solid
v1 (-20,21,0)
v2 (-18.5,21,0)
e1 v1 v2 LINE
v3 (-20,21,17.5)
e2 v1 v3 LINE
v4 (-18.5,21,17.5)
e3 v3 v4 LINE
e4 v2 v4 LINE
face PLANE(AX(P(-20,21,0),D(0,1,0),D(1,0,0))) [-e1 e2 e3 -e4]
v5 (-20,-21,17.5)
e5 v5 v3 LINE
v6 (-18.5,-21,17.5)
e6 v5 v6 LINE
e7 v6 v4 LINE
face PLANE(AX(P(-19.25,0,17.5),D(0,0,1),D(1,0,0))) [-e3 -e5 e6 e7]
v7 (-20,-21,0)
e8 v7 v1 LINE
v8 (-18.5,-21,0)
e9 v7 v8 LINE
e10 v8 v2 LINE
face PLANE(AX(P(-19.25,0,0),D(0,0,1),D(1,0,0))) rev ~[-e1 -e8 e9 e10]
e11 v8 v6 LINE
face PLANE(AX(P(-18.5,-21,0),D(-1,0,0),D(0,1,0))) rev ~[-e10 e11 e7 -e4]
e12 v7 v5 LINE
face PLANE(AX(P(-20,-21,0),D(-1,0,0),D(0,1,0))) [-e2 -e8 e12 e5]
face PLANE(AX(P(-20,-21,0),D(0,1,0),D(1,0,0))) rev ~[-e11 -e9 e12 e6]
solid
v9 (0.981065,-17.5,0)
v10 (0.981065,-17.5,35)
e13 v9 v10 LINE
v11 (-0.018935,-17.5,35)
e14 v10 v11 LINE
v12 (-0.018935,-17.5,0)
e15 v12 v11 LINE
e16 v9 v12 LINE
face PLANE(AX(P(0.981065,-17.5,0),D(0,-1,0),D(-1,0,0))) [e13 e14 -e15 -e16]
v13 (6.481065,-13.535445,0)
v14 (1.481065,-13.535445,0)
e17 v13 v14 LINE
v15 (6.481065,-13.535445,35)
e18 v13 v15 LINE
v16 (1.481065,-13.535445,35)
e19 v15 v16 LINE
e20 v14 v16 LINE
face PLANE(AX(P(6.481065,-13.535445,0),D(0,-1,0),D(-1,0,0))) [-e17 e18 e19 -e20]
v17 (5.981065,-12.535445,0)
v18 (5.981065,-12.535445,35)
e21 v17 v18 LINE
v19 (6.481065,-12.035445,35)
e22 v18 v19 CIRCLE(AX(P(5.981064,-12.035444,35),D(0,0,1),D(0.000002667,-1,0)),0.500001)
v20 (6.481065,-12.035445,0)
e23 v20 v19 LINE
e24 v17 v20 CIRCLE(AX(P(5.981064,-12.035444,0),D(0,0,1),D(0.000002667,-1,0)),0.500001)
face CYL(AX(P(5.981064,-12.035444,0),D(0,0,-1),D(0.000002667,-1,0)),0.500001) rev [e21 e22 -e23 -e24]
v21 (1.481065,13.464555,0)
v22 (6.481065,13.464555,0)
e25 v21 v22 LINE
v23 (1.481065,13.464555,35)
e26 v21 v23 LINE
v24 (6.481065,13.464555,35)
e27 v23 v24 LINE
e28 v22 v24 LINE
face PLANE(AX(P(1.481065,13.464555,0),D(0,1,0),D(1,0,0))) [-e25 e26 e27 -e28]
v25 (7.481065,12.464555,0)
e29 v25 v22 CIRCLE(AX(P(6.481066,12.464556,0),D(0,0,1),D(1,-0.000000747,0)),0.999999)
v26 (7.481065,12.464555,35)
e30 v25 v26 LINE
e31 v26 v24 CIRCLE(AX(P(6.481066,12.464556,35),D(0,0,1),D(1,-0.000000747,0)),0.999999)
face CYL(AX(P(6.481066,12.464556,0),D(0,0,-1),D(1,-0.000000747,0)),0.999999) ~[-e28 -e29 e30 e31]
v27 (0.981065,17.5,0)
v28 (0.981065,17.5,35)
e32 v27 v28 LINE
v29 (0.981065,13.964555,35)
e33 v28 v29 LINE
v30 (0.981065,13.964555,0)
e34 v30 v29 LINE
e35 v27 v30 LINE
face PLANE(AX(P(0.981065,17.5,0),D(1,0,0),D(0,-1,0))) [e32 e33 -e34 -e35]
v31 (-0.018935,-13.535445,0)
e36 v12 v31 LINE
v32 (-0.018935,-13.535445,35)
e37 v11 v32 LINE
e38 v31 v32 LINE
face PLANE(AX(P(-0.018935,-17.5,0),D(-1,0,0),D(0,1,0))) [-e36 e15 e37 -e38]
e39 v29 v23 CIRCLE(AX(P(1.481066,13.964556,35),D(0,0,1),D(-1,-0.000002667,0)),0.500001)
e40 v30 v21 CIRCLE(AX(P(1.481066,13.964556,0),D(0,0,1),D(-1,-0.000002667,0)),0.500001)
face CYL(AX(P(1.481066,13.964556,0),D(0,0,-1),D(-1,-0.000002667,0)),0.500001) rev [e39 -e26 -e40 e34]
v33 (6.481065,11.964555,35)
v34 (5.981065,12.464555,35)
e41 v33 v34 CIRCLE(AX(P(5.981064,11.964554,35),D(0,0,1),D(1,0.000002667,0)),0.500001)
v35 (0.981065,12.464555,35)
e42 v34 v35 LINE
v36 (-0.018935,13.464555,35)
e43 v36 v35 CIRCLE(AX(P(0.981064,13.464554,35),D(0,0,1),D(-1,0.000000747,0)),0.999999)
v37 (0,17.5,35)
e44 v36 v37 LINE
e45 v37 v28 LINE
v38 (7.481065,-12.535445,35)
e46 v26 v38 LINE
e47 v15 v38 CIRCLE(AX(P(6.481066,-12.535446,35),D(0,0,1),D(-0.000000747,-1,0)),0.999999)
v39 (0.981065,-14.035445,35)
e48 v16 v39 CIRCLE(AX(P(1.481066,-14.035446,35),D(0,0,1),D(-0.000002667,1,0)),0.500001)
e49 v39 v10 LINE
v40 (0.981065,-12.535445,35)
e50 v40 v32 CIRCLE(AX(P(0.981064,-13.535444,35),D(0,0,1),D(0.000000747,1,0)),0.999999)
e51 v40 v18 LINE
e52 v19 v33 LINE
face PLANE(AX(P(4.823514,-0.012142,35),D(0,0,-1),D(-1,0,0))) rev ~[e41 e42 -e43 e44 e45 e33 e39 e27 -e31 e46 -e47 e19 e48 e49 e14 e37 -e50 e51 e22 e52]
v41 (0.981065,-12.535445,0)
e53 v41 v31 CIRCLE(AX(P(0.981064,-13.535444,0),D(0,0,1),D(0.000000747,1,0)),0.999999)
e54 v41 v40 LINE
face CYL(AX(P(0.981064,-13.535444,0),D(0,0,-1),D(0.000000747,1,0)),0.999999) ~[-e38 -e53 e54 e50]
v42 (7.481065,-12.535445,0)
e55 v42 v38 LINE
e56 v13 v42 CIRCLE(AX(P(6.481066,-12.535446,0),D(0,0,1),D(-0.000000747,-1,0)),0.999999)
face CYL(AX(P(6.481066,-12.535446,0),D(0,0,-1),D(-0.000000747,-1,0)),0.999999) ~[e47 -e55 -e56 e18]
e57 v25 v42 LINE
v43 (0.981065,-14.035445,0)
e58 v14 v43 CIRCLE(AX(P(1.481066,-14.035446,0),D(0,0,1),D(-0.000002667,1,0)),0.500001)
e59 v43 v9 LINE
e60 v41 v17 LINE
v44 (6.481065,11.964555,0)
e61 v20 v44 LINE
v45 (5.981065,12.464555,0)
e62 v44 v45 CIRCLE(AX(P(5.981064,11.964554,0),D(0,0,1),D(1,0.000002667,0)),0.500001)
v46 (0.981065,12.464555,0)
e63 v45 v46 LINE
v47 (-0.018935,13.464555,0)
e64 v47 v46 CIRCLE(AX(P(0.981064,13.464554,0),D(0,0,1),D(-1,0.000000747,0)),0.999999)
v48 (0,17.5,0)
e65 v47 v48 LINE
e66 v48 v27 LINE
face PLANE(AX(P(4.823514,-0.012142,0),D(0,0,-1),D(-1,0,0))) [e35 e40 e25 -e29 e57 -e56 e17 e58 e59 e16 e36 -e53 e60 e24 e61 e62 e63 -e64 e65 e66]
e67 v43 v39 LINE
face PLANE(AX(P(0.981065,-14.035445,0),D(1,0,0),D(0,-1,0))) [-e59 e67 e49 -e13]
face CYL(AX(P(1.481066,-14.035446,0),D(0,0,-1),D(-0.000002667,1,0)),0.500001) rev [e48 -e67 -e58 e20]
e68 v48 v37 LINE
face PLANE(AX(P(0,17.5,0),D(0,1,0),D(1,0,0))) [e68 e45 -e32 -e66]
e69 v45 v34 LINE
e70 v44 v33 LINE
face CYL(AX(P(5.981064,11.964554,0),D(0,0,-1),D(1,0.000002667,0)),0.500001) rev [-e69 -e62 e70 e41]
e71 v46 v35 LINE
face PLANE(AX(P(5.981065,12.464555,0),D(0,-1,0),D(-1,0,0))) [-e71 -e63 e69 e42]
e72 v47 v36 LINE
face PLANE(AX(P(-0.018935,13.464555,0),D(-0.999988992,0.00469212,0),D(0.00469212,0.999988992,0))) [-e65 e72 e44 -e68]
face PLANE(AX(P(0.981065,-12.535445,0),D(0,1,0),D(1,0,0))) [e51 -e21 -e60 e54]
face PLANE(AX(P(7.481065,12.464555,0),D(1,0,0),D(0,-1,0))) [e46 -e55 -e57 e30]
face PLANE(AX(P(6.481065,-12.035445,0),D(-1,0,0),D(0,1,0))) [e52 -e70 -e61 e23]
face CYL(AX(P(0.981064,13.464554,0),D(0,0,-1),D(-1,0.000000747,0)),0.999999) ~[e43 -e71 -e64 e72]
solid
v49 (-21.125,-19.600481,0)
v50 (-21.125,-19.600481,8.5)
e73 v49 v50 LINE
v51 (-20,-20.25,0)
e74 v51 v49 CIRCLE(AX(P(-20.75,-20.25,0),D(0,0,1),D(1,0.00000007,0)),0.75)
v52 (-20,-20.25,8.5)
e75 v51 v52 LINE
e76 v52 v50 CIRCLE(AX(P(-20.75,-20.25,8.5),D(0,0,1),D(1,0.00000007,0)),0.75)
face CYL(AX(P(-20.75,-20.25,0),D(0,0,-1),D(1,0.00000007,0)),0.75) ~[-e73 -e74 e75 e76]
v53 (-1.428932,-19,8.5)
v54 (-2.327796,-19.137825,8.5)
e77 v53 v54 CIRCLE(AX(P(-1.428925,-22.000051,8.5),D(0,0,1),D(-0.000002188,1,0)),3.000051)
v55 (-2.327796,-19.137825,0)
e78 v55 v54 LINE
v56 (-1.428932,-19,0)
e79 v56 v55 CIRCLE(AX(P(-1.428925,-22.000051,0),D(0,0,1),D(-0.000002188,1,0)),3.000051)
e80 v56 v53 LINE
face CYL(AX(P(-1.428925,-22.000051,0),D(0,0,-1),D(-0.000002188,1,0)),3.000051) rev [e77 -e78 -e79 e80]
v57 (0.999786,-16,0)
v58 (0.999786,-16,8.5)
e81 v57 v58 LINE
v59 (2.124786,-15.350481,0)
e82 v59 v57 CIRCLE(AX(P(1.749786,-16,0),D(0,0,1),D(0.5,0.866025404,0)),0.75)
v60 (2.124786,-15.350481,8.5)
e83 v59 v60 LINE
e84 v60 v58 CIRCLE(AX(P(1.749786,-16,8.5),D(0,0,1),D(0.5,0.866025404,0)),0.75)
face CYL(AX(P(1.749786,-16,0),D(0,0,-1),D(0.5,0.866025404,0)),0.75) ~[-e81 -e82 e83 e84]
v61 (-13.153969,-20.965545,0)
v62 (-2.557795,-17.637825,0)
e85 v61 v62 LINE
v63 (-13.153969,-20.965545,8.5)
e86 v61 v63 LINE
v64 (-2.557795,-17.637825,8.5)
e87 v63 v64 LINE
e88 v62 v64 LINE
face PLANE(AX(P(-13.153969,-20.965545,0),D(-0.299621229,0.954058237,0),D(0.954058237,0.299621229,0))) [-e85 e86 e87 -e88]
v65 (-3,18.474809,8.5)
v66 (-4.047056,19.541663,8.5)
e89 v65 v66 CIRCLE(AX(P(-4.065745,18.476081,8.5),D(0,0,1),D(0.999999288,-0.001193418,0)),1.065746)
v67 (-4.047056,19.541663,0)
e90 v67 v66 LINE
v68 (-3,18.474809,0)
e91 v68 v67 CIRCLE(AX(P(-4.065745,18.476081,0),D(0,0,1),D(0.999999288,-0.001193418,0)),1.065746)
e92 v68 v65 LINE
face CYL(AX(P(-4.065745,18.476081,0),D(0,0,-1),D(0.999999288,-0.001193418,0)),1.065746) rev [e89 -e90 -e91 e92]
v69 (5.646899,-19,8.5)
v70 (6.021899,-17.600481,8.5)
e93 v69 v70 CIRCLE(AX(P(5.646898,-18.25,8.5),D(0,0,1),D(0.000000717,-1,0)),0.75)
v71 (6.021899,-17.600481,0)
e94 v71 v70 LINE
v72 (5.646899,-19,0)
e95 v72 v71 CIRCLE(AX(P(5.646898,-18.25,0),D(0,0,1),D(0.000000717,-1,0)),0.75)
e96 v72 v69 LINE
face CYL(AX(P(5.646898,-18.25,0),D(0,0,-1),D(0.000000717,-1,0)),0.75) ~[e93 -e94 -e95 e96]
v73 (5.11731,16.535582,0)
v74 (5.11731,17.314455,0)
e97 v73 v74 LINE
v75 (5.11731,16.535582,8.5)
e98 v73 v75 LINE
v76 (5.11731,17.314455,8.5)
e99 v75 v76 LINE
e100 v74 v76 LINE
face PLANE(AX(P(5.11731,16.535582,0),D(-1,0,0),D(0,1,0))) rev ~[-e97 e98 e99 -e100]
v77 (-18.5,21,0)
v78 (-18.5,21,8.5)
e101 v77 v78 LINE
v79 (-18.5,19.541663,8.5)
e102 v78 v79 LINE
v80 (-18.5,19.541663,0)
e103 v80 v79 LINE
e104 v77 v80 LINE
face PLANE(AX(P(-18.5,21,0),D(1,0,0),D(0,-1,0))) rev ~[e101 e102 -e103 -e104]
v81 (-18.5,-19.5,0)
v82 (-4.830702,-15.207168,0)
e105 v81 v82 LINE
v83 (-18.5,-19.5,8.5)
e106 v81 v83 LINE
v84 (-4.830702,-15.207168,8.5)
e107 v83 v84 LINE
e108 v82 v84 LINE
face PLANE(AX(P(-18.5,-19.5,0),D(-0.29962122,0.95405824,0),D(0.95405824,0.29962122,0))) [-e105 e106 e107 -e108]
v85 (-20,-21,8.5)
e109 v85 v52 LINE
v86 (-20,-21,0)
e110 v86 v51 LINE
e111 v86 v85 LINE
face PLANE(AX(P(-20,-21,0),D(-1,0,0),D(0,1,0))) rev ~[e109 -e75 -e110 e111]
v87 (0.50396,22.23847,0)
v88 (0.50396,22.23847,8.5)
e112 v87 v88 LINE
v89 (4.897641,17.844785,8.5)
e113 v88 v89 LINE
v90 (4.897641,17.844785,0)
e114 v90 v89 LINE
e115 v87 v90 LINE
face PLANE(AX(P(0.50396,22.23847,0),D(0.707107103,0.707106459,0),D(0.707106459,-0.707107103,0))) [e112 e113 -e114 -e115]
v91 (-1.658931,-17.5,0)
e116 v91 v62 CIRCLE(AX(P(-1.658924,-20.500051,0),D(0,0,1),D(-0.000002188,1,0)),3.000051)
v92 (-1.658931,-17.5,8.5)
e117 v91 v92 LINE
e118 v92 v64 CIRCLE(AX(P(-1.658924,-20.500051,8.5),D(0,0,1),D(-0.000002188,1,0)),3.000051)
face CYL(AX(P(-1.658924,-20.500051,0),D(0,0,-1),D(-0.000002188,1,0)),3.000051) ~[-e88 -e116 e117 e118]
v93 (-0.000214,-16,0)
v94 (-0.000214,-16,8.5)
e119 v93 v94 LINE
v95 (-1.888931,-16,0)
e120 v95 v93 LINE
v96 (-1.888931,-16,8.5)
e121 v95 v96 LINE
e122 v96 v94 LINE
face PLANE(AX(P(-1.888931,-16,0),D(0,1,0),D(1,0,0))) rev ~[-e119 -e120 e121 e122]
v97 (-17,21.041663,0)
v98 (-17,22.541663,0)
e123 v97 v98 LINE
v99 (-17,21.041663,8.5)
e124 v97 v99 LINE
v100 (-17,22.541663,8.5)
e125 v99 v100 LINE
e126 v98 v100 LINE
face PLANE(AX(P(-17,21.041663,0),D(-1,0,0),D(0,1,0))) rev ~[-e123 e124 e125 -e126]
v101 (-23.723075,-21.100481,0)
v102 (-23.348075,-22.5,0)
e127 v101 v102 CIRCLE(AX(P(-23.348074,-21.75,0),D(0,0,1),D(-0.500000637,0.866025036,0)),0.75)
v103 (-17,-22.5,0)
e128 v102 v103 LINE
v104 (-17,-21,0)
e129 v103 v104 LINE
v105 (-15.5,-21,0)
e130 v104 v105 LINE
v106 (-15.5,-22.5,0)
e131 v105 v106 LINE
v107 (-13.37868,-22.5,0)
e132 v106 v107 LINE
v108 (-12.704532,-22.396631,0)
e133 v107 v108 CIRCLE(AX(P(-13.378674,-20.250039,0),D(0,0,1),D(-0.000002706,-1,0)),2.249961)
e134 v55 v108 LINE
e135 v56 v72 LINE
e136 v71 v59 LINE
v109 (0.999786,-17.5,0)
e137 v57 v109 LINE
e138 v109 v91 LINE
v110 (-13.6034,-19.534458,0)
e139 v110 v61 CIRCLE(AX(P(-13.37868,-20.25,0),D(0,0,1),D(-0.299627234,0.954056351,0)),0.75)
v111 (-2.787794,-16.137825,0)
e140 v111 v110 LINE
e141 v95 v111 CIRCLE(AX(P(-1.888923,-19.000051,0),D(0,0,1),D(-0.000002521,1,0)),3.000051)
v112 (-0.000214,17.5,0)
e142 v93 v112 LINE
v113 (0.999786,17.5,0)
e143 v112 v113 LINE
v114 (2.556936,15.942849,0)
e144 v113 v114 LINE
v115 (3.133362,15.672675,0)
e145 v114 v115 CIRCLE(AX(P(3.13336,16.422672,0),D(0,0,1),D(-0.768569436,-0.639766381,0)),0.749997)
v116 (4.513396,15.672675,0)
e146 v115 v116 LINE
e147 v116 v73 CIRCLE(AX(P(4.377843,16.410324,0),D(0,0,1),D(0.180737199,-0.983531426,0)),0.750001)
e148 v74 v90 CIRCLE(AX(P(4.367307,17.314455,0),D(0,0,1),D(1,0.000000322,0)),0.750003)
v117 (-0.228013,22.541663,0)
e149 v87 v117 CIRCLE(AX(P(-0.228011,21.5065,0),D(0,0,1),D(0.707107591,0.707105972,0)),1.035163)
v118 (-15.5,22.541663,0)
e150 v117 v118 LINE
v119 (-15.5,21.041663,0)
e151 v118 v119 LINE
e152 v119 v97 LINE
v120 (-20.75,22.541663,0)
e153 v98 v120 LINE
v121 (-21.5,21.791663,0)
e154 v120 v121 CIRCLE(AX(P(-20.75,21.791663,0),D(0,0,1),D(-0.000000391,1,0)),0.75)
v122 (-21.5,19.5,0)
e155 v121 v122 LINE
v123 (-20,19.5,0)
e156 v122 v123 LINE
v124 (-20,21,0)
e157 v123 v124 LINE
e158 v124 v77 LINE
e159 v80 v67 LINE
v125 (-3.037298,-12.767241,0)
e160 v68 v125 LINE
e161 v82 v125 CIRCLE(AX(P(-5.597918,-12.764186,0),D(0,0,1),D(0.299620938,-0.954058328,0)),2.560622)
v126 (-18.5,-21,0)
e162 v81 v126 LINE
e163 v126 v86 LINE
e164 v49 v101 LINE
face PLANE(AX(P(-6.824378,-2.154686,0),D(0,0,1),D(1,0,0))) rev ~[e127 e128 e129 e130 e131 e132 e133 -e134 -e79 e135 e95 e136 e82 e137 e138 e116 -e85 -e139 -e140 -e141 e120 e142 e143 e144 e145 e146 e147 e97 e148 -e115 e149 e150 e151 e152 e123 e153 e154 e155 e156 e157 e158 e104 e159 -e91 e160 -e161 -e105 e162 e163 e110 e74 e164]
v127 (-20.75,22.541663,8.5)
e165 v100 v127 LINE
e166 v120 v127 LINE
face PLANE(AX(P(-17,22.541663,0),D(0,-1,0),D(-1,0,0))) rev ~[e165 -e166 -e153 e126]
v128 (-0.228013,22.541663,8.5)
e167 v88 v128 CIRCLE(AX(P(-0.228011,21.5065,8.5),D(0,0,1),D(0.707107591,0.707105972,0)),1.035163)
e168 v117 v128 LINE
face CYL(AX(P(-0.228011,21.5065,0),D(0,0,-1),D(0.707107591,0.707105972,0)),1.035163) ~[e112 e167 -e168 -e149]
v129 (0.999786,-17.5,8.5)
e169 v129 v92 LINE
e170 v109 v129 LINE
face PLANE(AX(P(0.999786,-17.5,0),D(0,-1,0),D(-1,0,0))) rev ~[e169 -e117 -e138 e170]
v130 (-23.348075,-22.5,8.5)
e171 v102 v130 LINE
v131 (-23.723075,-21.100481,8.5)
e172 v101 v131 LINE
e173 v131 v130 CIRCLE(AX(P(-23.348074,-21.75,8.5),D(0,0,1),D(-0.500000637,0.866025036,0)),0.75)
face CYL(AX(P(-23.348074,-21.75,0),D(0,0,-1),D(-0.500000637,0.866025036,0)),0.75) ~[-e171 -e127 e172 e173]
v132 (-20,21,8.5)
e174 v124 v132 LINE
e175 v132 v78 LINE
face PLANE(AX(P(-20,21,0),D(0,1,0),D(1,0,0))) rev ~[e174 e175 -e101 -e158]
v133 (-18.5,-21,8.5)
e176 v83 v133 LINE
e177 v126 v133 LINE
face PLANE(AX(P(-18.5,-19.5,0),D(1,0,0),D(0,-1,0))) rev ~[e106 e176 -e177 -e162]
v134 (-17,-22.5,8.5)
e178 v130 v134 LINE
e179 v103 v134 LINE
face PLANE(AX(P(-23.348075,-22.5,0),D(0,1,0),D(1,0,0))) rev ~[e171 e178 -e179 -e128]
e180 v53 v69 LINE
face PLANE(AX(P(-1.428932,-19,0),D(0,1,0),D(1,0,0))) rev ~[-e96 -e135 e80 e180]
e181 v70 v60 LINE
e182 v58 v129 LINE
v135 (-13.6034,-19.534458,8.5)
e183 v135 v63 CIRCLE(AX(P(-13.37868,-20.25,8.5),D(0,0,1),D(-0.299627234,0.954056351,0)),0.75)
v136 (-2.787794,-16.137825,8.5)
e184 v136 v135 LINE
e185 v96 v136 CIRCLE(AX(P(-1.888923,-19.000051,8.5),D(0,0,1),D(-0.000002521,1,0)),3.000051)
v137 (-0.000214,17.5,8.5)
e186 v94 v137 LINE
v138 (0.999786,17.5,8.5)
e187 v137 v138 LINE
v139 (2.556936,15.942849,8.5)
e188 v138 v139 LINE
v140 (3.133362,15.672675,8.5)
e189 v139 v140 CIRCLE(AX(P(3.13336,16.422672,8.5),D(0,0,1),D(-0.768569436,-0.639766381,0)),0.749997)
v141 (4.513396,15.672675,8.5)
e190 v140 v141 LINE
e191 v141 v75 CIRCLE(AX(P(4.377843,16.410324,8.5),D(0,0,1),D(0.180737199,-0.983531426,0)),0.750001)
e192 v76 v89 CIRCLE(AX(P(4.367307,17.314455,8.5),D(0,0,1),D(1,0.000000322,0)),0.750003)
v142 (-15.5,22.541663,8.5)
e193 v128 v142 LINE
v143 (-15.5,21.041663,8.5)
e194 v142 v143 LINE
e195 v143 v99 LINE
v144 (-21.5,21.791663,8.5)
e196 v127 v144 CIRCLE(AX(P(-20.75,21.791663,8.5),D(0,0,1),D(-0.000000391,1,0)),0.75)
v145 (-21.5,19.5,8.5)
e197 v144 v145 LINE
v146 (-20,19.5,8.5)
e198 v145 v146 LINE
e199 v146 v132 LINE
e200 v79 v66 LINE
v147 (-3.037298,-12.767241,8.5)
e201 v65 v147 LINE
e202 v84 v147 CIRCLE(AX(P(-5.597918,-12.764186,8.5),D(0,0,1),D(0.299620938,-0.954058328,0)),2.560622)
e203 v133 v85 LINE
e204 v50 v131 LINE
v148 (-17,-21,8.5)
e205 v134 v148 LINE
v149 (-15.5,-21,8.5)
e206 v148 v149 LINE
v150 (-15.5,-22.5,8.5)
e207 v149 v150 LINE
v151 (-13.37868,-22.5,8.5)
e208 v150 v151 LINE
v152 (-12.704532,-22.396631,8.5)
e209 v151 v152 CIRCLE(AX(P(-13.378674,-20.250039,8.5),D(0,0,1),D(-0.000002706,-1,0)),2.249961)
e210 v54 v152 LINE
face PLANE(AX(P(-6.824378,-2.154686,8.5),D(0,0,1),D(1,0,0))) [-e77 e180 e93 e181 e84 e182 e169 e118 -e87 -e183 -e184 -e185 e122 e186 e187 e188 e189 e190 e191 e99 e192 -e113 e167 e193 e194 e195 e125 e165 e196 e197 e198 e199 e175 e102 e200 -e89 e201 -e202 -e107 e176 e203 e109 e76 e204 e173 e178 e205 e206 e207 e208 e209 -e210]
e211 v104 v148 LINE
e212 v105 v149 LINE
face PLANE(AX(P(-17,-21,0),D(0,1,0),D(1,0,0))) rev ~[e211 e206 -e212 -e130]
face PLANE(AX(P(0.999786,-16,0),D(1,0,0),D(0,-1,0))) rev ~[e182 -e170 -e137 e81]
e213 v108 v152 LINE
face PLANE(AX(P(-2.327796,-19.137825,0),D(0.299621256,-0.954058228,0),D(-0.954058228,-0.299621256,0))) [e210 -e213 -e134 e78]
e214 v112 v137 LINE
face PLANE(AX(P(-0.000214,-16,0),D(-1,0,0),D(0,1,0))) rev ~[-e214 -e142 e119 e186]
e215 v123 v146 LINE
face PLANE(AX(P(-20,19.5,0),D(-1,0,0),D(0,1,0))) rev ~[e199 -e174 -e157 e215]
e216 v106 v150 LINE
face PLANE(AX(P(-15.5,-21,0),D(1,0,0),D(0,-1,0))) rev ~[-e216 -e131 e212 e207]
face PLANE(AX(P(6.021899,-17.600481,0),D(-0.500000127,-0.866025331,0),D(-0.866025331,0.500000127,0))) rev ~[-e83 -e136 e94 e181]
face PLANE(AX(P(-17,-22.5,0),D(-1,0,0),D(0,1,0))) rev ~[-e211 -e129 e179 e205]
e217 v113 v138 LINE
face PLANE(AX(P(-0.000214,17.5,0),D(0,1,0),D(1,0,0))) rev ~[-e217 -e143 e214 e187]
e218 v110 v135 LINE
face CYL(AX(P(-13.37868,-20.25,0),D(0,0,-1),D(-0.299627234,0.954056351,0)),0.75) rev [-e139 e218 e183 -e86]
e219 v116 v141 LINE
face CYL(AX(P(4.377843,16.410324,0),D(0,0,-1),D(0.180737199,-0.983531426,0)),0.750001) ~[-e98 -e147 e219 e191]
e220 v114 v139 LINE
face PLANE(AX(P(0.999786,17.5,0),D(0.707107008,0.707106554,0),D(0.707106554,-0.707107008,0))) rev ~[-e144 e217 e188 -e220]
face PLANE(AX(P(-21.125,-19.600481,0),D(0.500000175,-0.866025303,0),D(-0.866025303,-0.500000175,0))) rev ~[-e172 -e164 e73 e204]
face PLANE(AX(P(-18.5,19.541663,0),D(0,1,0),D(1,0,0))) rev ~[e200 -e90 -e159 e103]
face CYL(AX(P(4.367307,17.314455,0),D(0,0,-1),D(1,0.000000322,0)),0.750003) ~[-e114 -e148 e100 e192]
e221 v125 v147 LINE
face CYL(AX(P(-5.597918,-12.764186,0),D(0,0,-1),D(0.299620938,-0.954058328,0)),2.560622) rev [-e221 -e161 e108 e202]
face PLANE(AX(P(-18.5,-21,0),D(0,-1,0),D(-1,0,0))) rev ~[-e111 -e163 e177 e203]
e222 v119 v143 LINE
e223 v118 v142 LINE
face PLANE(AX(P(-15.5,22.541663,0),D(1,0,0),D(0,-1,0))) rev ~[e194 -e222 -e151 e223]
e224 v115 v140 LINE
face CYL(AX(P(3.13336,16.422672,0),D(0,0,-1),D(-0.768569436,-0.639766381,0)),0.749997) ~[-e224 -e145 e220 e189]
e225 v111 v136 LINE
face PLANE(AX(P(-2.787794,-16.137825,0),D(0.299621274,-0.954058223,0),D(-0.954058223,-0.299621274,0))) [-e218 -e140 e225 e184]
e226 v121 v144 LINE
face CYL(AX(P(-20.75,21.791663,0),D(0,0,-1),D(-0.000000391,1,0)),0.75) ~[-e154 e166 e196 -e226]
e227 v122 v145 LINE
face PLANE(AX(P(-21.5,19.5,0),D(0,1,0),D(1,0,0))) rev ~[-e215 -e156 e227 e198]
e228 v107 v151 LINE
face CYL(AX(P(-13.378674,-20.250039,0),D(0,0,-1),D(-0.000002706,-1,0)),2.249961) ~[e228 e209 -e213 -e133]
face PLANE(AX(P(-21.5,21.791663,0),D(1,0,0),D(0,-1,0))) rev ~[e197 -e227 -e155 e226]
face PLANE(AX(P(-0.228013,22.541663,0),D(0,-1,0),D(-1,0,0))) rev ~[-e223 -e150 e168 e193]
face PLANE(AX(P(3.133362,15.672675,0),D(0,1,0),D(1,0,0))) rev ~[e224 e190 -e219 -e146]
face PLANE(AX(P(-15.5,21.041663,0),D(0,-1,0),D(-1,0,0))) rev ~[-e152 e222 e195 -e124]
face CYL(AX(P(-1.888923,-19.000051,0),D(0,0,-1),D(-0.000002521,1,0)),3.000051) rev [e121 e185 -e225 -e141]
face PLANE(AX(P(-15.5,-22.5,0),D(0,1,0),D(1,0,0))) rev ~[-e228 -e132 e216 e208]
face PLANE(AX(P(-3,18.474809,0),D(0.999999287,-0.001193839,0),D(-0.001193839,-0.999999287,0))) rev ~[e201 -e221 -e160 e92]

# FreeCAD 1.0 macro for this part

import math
import FreeCAD as App
import Part
import Sketcher
Q = App.Units.Quantity


def add_polygon(sketch, points):
    """Adds a closed chain of lines whose ends are joined by coincident constraints."""
    first, n = sketch.GeometryCount, len(points)
    for a, b in zip(points, points[1:] + points[:1]):
        sketch.addGeometry(Part.LineSegment(App.Vector(*a, 0), App.Vector(*b, 0)), False)
    for i in range(n):
        sketch.addConstraint(Sketcher.Constraint("Coincident", first + i, 2, first + (i + 1) % n, 1))

doc = App.newDocument("Part")
body = doc.addObject("PartDesign::Body", "Body")

sketch1 = body.newObject("Sketcher::SketchObject", "Sketch")
sketch1.AttachmentSupport = (doc.getObject("XY_Plane"), [""])
sketch1.MapMode = "FlatFace"
sketch1.addGeometry([
    Part.LineSegment(App.Vector(0.981065, 17.5, 0), App.Vector(0, 17.5, 0)),
    Part.LineSegment(App.Vector(0, 17.5, 0), App.Vector(-0.018935, 13.464555, 0)),
    Part.ArcOfCircle(Part.Circle(App.Vector(0.981064, 13.464554, 0), App.Vector(0, 0, 1), 0.999999), math.radians(179.999957), math.radians(270.000043)),
    Part.LineSegment(App.Vector(0.981065, 12.464555, 0), App.Vector(5.981065, 12.464555, 0)),
    Part.ArcOfCircle(Part.Circle(App.Vector(5.981064, 11.964554, 0), App.Vector(0, 0, 1), 0.500001), math.radians(0.000153), math.radians(89.999847)),
    Part.LineSegment(App.Vector(6.481065, 11.964555, 0), App.Vector(6.481065, -12.035445, 0)),
    Part.ArcOfCircle(Part.Circle(App.Vector(5.981064, -12.035444, 0), App.Vector(0, 0, 1), 0.500001), math.radians(-89.999847), math.radians(-0.000153)),
    Part.LineSegment(App.Vector(5.981065, -12.535445, 0), App.Vector(0.981065, -12.535445, 0)),
    Part.ArcOfCircle(Part.Circle(App.Vector(0.981064, -13.535444, 0), App.Vector(0, 0, 1), 0.999999), math.radians(89.999957), math.radians(180.000043)),
    Part.LineSegment(App.Vector(-0.018935, -13.535445, 0), App.Vector(-0.018935, -17.5, 0)),
    Part.LineSegment(App.Vector(-0.018935, -17.5, 0), App.Vector(0.981065, -17.5, 0)),
    Part.LineSegment(App.Vector(0.981065, -17.5, 0), App.Vector(0.981065, -14.035445, 0)),
    Part.ArcOfCircle(Part.Circle(App.Vector(1.481066, -14.035446, 0), App.Vector(0, 0, 1), 0.500001), math.radians(90.000153), math.radians(179.999847)),
    Part.LineSegment(App.Vector(1.481065, -13.535445, 0), App.Vector(6.481065, -13.535445, 0)),
    Part.ArcOfCircle(Part.Circle(App.Vector(6.481066, -12.535446, 0), App.Vector(0, 0, 1), 0.999999), math.radians(-90.000043), math.radians(0.000043)),
    Part.LineSegment(App.Vector(7.481065, -12.535445, 0), App.Vector(7.481065, 12.464555, 0)),
    Part.ArcOfCircle(Part.Circle(App.Vector(6.481066, 12.464556, 0), App.Vector(0, 0, 1), 0.999999), math.radians(-0.000043), math.radians(90.000043)),
    Part.LineSegment(App.Vector(6.481065, 13.464555, 0), App.Vector(1.481065, 13.464555, 0)),
    Part.ArcOfCircle(Part.Circle(App.Vector(1.481066, 13.964556, 0), App.Vector(0, 0, 1), 0.500001), math.radians(-179.999847), math.radians(-90.000153)),
    Part.LineSegment(App.Vector(0.981065, 13.964555, 0), App.Vector(0.981065, 17.5, 0)),
], False)
sketch1.addConstraint([
    Sketcher.Constraint("Coincident", 0, 2, 1, 1),
    Sketcher.Constraint("Coincident", 1, 2, 2, 1),
    Sketcher.Constraint("Tangent", 2, 2, 3, 1),
    Sketcher.Constraint("Coincident", 3, 2, 4, 2),
    Sketcher.Constraint("Coincident", 4, 1, 5, 1),
    Sketcher.Constraint("Coincident", 5, 2, 6, 2),
    Sketcher.Constraint("Coincident", 6, 1, 7, 1),
    Sketcher.Constraint("Tangent", 7, 2, 8, 1),
    Sketcher.Constraint("Tangent", 8, 2, 9, 1),
    Sketcher.Constraint("Coincident", 9, 2, 10, 1),
    Sketcher.Constraint("Coincident", 10, 2, 11, 1),
    Sketcher.Constraint("Coincident", 11, 2, 12, 2),
    Sketcher.Constraint("Coincident", 12, 1, 13, 1),
    Sketcher.Constraint("Tangent", 13, 2, 14, 1),
    Sketcher.Constraint("Tangent", 14, 2, 15, 1),
    Sketcher.Constraint("Tangent", 15, 2, 16, 1),
    Sketcher.Constraint("Tangent", 16, 2, 17, 1),
    Sketcher.Constraint("Coincident", 17, 2, 18, 2),
    Sketcher.Constraint("Coincident", 18, 1, 19, 1),
    Sketcher.Constraint("Coincident", 19, 2, 0, 1),
    Sketcher.Constraint("Horizontal", 0),
    Sketcher.Constraint("Horizontal", 3),
    Sketcher.Constraint("Vertical", 5),
    Sketcher.Constraint("Horizontal", 7),
    Sketcher.Constraint("Vertical", 9),
    Sketcher.Constraint("Horizontal", 10),
    Sketcher.Constraint("Vertical", 11),
    Sketcher.Constraint("Horizontal", 13),
    Sketcher.Constraint("Vertical", 15),
    Sketcher.Constraint("Horizontal", 17),
    Sketcher.Constraint("Vertical", 19),
    Sketcher.Constraint("Equal", 4, 6),
    Sketcher.Constraint("Equal", 2, 8),
    Sketcher.Constraint("Equal", 6, 12),
    Sketcher.Constraint("Equal", 8, 14),
    Sketcher.Constraint("Equal", 14, 16),
    Sketcher.Constraint("Equal", 12, 18),
    Sketcher.Constraint("Symmetric", 10, 2, 19, 2, -1),
    Sketcher.Constraint("PointOnObject", 0, 2, -2),
    Sketcher.Constraint("Horizontal", 2, 3, 1, 2),
    Sketcher.Constraint("Horizontal", 16, 3, 2, 2),
    Sketcher.Constraint("Horizontal", 6, 3, 5, 2),
    Sketcher.Constraint("Horizontal", 14, 3, 6, 1),
    Sketcher.Constraint("Horizontal", 12, 3, 11, 2),
    Sketcher.Constraint("Vertical", 2, 3, 8, 3),
    Sketcher.Constraint("Vertical", 6, 3, 3, 2),
    Sketcher.Constraint("Vertical", 16, 3, 4, 1),
    Sketcher.Constraint("Vertical", 3, 2, 6, 1),
    Sketcher.Constraint("Vertical", 7, 2, 10, 2),
    Sketcher.Constraint("Vertical", 18, 3, 12, 1),
    Sketcher.Constraint("Vertical", 12, 1, 17, 2),
    Sketcher.Constraint("Radius", 2, Q("0.999999 mm")),
    Sketcher.Constraint("Radius", 4, Q("0.500001 mm")),
    Sketcher.Constraint("DistanceX", 3, 1, 3, 2, Q("5 mm")),
    Sketcher.Constraint("DistanceY", 5, 2, 5, 1, Q("24 mm")),
    Sketcher.Constraint("DistanceY", 15, 1, 15, 2, Q("25 mm")),
    Sketcher.Constraint("DistanceY", -1, 1, 0, 2, Q("17.5 mm")),
    Sketcher.Constraint("DistanceY", 2, 3, 18, 1, Q("0.500001 mm")),
    Sketcher.Constraint("Distance", 1, Q("4.035489 mm")),
    Sketcher.Constraint("DistanceX", 0, 2, 0, 1, Q("0.981065 mm")),
])
pad1 = body.newObject("PartDesign::Pad", "Pad")
pad1.Profile = sketch1
pad1.Length = 35
body2 = doc.addObject("PartDesign::Body", "Body001")

sketch2 = body2.newObject("Sketcher::SketchObject", "Sketch001")
sketch2.AttachmentSupport = (doc.getObject("XY_Plane001"), [""])
sketch2.MapMode = "FlatFace"
sketch2.addGeometry([
    Part.LineSegment(App.Vector(-0.228013, 22.541663, 0), App.Vector(-15.5, 22.541663, 0)),
    Part.LineSegment(App.Vector(-15.5, 22.541663, 0), App.Vector(-15.5, 21.041663, 0)),
    Part.LineSegment(App.Vector(-15.5, 21.041663, 0), App.Vector(-17, 21.041663, 0)),
    Part.LineSegment(App.Vector(-17, 21.041663, 0), App.Vector(-17, 22.541663, 0)),
    Part.LineSegment(App.Vector(-17, 22.541663, 0), App.Vector(-20.75, 22.541663, 0)),
    Part.ArcOfCircle(Part.Circle(App.Vector(-20.75, 21.791663, 0), App.Vector(0, 0, 1), 0.75), math.radians(90.000022), math.radians(179.999978)),
    Part.LineSegment(App.Vector(-21.5, 21.791663, 0), App.Vector(-21.5, 19.5, 0)),
    Part.LineSegment(App.Vector(-21.5, 19.5, 0), App.Vector(-20, 19.5, 0)),
    Part.LineSegment(App.Vector(-20, 19.5, 0), App.Vector(-20, 21, 0)),
    Part.LineSegment(App.Vector(-20, 21, 0), App.Vector(-18.5, 21, 0)),
    Part.LineSegment(App.Vector(-18.5, 21, 0), App.Vector(-18.5, 19.541663, 0)),
    Part.LineSegment(App.Vector(-18.5, 19.541663, 0), App.Vector(-4.047056, 19.541663, 0)),
    Part.ArcOfCircle(Part.Circle(App.Vector(-4.065745, 18.476081, 0), App.Vector(0, 0, 1), 1.065746), math.radians(-0.068378), math.radians(88.995192)),
    Part.LineSegment(App.Vector(-3, 18.474809, 0), App.Vector(-3.037298, -12.767241, 0)),
    Part.ArcOfCircle(Part.Circle(App.Vector(-5.597918, -12.764186, 0), App.Vector(0, 0, 1), 2.560622), math.radians(-72.565163), math.radians(-0.068368)),
    Part.LineSegment(App.Vector(-4.830702, -15.207168, 0), App.Vector(-18.5, -19.5, 0)),
    Part.LineSegment(App.Vector(-18.5, -19.5, 0), App.Vector(-18.5, -21, 0)),
    Part.LineSegment(App.Vector(-18.5, -21, 0), App.Vector(-20, -21, 0)),
    Part.LineSegment(App.Vector(-20, -21, 0), App.Vector(-20, -20.25, 0)),
    Part.ArcOfCircle(Part.Circle(App.Vector(-20.75, -20.25, 0), App.Vector(0, 0, 1), 0.75), math.radians(0.000004), math.radians(120)),
    Part.LineSegment(App.Vector(-21.125, -19.600481, 0), App.Vector(-23.723075, -21.100481, 0)),
    Part.ArcOfCircle(Part.Circle(App.Vector(-23.348074, -21.75, 0), App.Vector(0, 0, 1), 0.75), math.radians(120.000042), math.radians(269.999959)),
    Part.LineSegment(App.Vector(-23.348075, -22.5, 0), App.Vector(-17, -22.5, 0)),
    Part.LineSegment(App.Vector(-17, -22.5, 0), App.Vector(-17, -21, 0)),
    Part.LineSegment(App.Vector(-17, -21, 0), App.Vector(-15.5, -21, 0)),
    Part.LineSegment(App.Vector(-15.5, -21, 0), App.Vector(-15.5, -22.5, 0)),
    Part.LineSegment(App.Vector(-15.5, -22.5, 0), App.Vector(-13.37868, -22.5, 0)),
    Part.ArcOfCircle(Part.Circle(App.Vector(-13.378674, -20.250039, 0), App.Vector(0, 0, 1), 2.249961), math.radians(-90.000155), math.radians(-72.564991)),
    Part.LineSegment(App.Vector(-12.704532, -22.396631, 0), App.Vector(-2.327796, -19.137825, 0)),
    Part.ArcOfCircle(Part.Circle(App.Vector(-1.428925, -22.000051, 0), App.Vector(0, 0, 1), 3.000051), math.radians(90.000125), math.radians(107.434687)),
    Part.LineSegment(App.Vector(-1.428932, -19, 0), App.Vector(5.646899, -19, 0)),
    Part.ArcOfCircle(Part.Circle(App.Vector(5.646898, -18.25, 0), App.Vector(0, 0, 1), 0.75), math.radians(-89.999959), math.radians(59.999958)),
    Part.LineSegment(App.Vector(6.021899, -17.600481, 0), App.Vector(2.124786, -15.350481, 0)),
    Part.ArcOfCircle(Part.Circle(App.Vector(1.749786, -16, 0), App.Vector(0, 0, 1), 0.75), math.radians(60), math.radians(179.999996)),
    Part.LineSegment(App.Vector(0.999786, -16, 0), App.Vector(0.999786, -17.5, 0)),
    Part.LineSegment(App.Vector(0.999786, -17.5, 0), App.Vector(-1.658931, -17.5, 0)),
    Part.ArcOfCircle(Part.Circle(App.Vector(-1.658924, -20.500051, 0), App.Vector(0, 0, 1), 3.000051), math.radians(90.000125), math.radians(107.434687)),
    Part.LineSegment(App.Vector(-2.557795, -17.637825, 0), App.Vector(-13.153969, -20.965545, 0)),
    Part.ArcOfCircle(Part.Circle(App.Vector(-13.37868, -20.25, 0), App.Vector(0, 0, 1), 0.75), math.radians(107.435215), math.radians(287.434441)),
    Part.LineSegment(App.Vector(-13.6034, -19.534458, 0), App.Vector(-2.787794, -16.137825, 0)),
    Part.ArcOfCircle(Part.Circle(App.Vector(-1.888923, -19.000051, 0), App.Vector(0, 0, 1), 3.000051), math.radians(90.000144), math.radians(107.434687)),
    Part.LineSegment(App.Vector(-1.888931, -16, 0), App.Vector(-0.000214, -16, 0)),
    Part.LineSegment(App.Vector(-0.000214, -16, 0), App.Vector(-0.000214, 17.5, 0)),
    Part.LineSegment(App.Vector(-0.000214, 17.5, 0), App.Vector(0.999786, 17.5, 0)),
    Part.LineSegment(App.Vector(0.999786, 17.5, 0), App.Vector(2.556936, 15.942849, 0)),
    Part.ArcOfCircle(Part.Circle(App.Vector(3.13336, 16.422672, 0), App.Vector(0, 0, 1), 0.749997), math.radians(-140.225599), math.radians(-89.999884)),
    Part.LineSegment(App.Vector(3.133362, 15.672675, 0), App.Vector(4.513396, 15.672675, 0)),
    Part.ArcOfCircle(Part.Circle(App.Vector(4.377843, 16.410324, 0), App.Vector(0, 0, 1), 0.750001), math.radians(-79.587298), math.radians(9.614033)),
    Part.LineSegment(App.Vector(5.11731, 16.535582, 0), App.Vector(5.11731, 17.314455, 0)),
    Part.ArcOfCircle(Part.Circle(App.Vector(4.367307, 17.314455, 0), App.Vector(0, 0, 1), 0.750003), math.radians(0.000018), math.radians(44.99982)),
    Part.LineSegment(App.Vector(4.897641, 17.844785, 0), App.Vector(0.50396, 22.23847, 0)),
    Part.ArcOfCircle(Part.Circle(App.Vector(-0.228011, 21.5065, 0), App.Vector(0, 0, 1), 1.035163), math.radians(44.999934), math.radians(90.000085)),
], False)
sketch2.addConstraint([
    Sketcher.Constraint("Coincident", 0, 2, 1, 1),
    Sketcher.Constraint("Coincident", 1, 2, 2, 1),
    Sketcher.Constraint("Coincident", 2, 2, 3, 1),
    Sketcher.Constraint("Coincident", 3, 2, 4, 1),
    Sketcher.Constraint("Coincident", 4, 2, 5, 1),
    Sketcher.Constraint("Coincident", 5, 2, 6, 1),
    Sketcher.Constraint("Coincident", 6, 2, 7, 1),
    Sketcher.Constraint("Coincident", 7, 2, 8, 1),
    Sketcher.Constraint("Coincident", 8, 2, 9, 1),
    Sketcher.Constraint("Coincident", 9, 2, 10, 1),
    Sketcher.Constraint("Coincident", 10, 2, 11, 1),
    Sketcher.Constraint("Coincident", 11, 2, 12, 2),
    Sketcher.Constraint("Coincident", 12, 1, 13, 1),
    Sketcher.Constraint("Coincident", 13, 2, 14, 2),
    Sketcher.Constraint("Coincident", 14, 1, 15, 1),
    Sketcher.Constraint("Coincident", 15, 2, 16, 1),
    Sketcher.Constraint("Coincident", 16, 2, 17, 1),
    Sketcher.Constraint("Coincident", 17, 2, 18, 1),
    Sketcher.Constraint("Coincident", 18, 2, 19, 1),
    Sketcher.Constraint("Coincident", 19, 2, 20, 1),
    Sketcher.Constraint("Coincident", 20, 2, 21, 1),
    Sketcher.Constraint("Coincident", 21, 2, 22, 1),
    Sketcher.Constraint("Coincident", 22, 2, 23, 1),
    Sketcher.Constraint("Coincident", 23, 2, 24, 1),
    Sketcher.Constraint("Coincident", 24, 2, 25, 1),
    Sketcher.Constraint("Coincident", 25, 2, 26, 1),
    Sketcher.Constraint("Coincident", 26, 2, 27, 1),
    Sketcher.Constraint("Coincident", 27, 2, 28, 1),
    Sketcher.Constraint("Coincident", 28, 2, 29, 2),
    Sketcher.Constraint("Coincident", 29, 1, 30, 1),
    Sketcher.Constraint("Coincident", 30, 2, 31, 1),
    Sketcher.Constraint("Coincident", 31, 2, 32, 1),
    Sketcher.Constraint("Coincident", 32, 2, 33, 1),
    Sketcher.Constraint("Coincident", 33, 2, 34, 1),
    Sketcher.Constraint("Coincident", 34, 2, 35, 1),
    Sketcher.Constraint("Coincident", 35, 2, 36, 1),
    Sketcher.Constraint("Coincident", 36, 2, 37, 1),
    Sketcher.Constraint("Coincident", 37, 2, 38, 2),
    Sketcher.Constraint("Coincident", 38, 1, 39, 1),
    Sketcher.Constraint("Coincident", 39, 2, 40, 2),
    Sketcher.Constraint("Coincident", 40, 1, 41, 1),
    Sketcher.Constraint("Coincident", 41, 2, 42, 1),
    Sketcher.Constraint("Coincident", 42, 2, 43, 1),
    Sketcher.Constraint("Coincident", 43, 2, 44, 1),
    Sketcher.Constraint("Coincident", 44, 2, 45, 1),
    Sketcher.Constraint("Coincident", 45, 2, 46, 1),
    Sketcher.Constraint("Coincident", 46, 2, 47, 1),
    Sketcher.Constraint("Coincident", 47, 2, 48, 1),
    Sketcher.Constraint("Coincident", 48, 2, 49, 1),
    Sketcher.Constraint("Coincident", 49, 2, 50, 1),
    Sketcher.Constraint("Coincident", 50, 2, 51, 1),
    Sketcher.Constraint("Coincident", 51, 2, 0, 1),
    Sketcher.Constraint("Horizontal", 0),
    Sketcher.Constraint("Vertical", 1),
    Sketcher.Constraint("Horizontal", 2),
    Sketcher.Constraint("Vertical", 3),
    Sketcher.Constraint("Horizontal", 4),
    Sketcher.Constraint("Vertical", 6),
    Sketcher.Constraint("Horizontal", 7),
    Sketcher.Constraint("Vertical", 8),
    Sketcher.Constraint("Horizontal", 9),
    Sketcher.Constraint("Vertical", 10),
    Sketcher.Constraint("Horizontal", 11),
    Sketcher.Constraint("Vertical", 16),
    Sketcher.Constraint("Horizontal", 17),
    Sketcher.Constraint("Vertical", 18),
    Sketcher.Constraint("Horizontal", 22),
    Sketcher.Constraint("Vertical", 23),
    Sketcher.Constraint("Horizontal", 24),
    Sketcher.Constraint("Vertical", 25),
    Sketcher.Constraint("Horizontal", 26),
    Sketcher.Constraint("Horizontal", 30),
    Sketcher.Constraint("Vertical", 34),
    Sketcher.Constraint("Horizontal", 35),
    Sketcher.Constraint("Horizontal", 41),
    Sketcher.Constraint("Vertical", 42),
    Sketcher.Constraint("Horizontal", 43),
    Sketcher.Constraint("Horizontal", 46),
    Sketcher.Constraint("Vertical", 48),
    Sketcher.Constraint("DistanceX", 43, 1, 43, 2, Q("1 mm")),
    Sketcher.Constraint("Radius", 5, Q("0.75 mm")),
    Sketcher.Constraint("Radius", 19, Q("0.75 mm")),
    Sketcher.Constraint("Radius", 21, Q("0.75 mm")),
    Sketcher.Constraint("Radius", 31, Q("0.75 mm")),
    Sketcher.Constraint("Radius", 33, Q("0.75 mm")),
    Sketcher.Constraint("Radius", 38, Q("0.75 mm")),
    Sketcher.Constraint("Radius", 47, Q("0.750001 mm")),
    Sketcher.Constraint("Distance", 20, Q("2.999999 mm")),
    Sketcher.Constraint("DistanceX", 2, 2, 2, 1, Q("1.5 mm")),
    Sketcher.Constraint("DistanceX", 7, 1, 7, 2, Q("1.5 mm")),
    Sketcher.Constraint("DistanceX", 9, 1, 9, 2, Q("1.5 mm")),
    Sketcher.Constraint("DistanceX", 17, 2, 17, 1, Q("1.5 mm")),
    Sketcher.Constraint("DistanceX", 24, 1, 24, 2, Q("1.5 mm")),
    Sketcher.Constraint("DistanceY", 1, 2, 1, 1, Q("1.5 mm")),
    Sketcher.Constraint("DistanceY", 3, 1, 3, 2, Q("1.5 mm")),
    Sketcher.Constraint("DistanceY", 8, 1, 8, 2, Q("1.5 mm")),
    Sketcher.Constraint("DistanceY", 16, 2, 16, 1, Q("1.5 mm")),
    Sketcher.Constraint("DistanceY", 23, 1, 23, 2, Q("1.5 mm")),
    Sketcher.Constraint("DistanceY", 25, 2, 25, 1, Q("1.5 mm")),
    Sketcher.Constraint("DistanceY", 34, 2, 34, 1, Q("1.5 mm")),
    Sketcher.Constraint("DistanceY", 42, 1, 42, 2, Q("33.5 mm")),
    Sketcher.Constraint("DistanceY", 33, 3, -1, 1, Q("16 mm")),
    Sketcher.Constraint("DistanceX", 2, 2, -1, 1, Q("17 mm")),
    Sketcher.Constraint("DistanceX", 7, 2, -1, 1, Q("20 mm")),
    Sketcher.Constraint("DistanceY", -1, 1, 8, 2, Q("21 mm")),
    Sketcher.Constraint("DistanceX", 12, 1, -1, 1, Q("3 mm")),
    Sketcher.Constraint("DistanceY", 16, 2, -1, 1, Q("21 mm")),
    Sketcher.Constraint("DistanceX", 17, 2, -1, 1, Q("20 mm")),
    Sketcher.Constraint("DistanceX", 22, 2, -1, 1, Q("17 mm")),
    Sketcher.Constraint("DistanceY", 23, 2, -1, 1, Q("21 mm")),
    Sketcher.Constraint("DistanceY", 29, 1, -1, 1, Q("19 mm")),
    Sketcher.Constraint("DistanceY", 33, 2, -1, 1, Q("16 mm")),
    Sketcher.Constraint("DistanceY", 40, 1, -1, 1, Q("16 mm")),
    Sketcher.Constraint("Distance", 32, Q("4.499999 mm")),
    Sketcher.Constraint("DistanceX", 4, 2, 4, 1, Q("3.75 mm")),
    Sketcher.Constraint("DistanceY", 18, 1, 18, 2, Q("0.75 mm")),
    Sketcher.Constraint("DistanceY", 19, 3, -1, 1, Q("20.25 mm")),
    Sketcher.Constraint("DistanceY", 38, 3, -1, 1, Q("20.25 mm")),
    Sketcher.Constraint("Radius", 14, Q("2.560622 mm")),
    Sketcher.Constraint("Radius", 27, Q("2.249961 mm")),
    Sketcher.Constraint("Radius", 29, Q("3.000051 mm")),
    Sketcher.Constraint("Radius", 36, Q("3.000051 mm")),
    Sketcher.Constraint("Radius", 40, Q("3.000051 mm")),
    Sketcher.Constraint("DistanceX", 19, 2, -1, 1, Q("21.125 mm")),
    Sketcher.Constraint("Radius", 12, Q("1.065746 mm")),
    Sketcher.Constraint("Radius", 45, Q("0.749997 mm")),
    Sketcher.Constraint("Radius", 49, Q("0.750003 mm")),
    Sketcher.Constraint("Radius", 51, Q("1.035163 mm")),
    Sketcher.Constraint("DistanceX", 26, 1, 26, 2, Q("2.12132 mm")),
    Sketcher.Constraint("DistanceX", 30, 1, 30, 2, Q("7.075831 mm")),
    Sketcher.Constraint("DistanceX", -1, 1, 31, 3, Q("5.646898 mm")),
    Sketcher.Constraint("DistanceY", -1, 1, 51, 3, Q("21.5065 mm")),
    Sketcher.Constraint("DistanceX", -1, 1, 30, 2, Q("5.646899 mm")),
    Sketcher.Constraint("DistanceX", -1, 1, 31, 2, Q("6.021899 mm")),
    Sketcher.Constraint("DistanceX", 38, 1, -1, 1, Q("13.6034 mm")),
    Sketcher.Constraint("Distance", 15, Q("14.32753 mm")),
    Sketcher.Constraint("Distance", 39, Q("11.336421 mm")),
    Sketcher.Constraint("DistanceX", 0, 2, 0, 1, Q("15.271987 mm")),
    Sketcher.Constraint("DistanceX", 11, 1, 11, 2, Q("14.452944 mm")),
    Sketcher.Constraint("DistanceX", 22, 1, 22, 2, Q("6.348075 mm")),
    Sketcher.Constraint("DistanceX", 35, 2, 35, 1, Q("2.658717 mm")),
    Sketcher.Constraint("DistanceX", 41, 1, 41, 2, Q("1.888717 mm")),
    Sketcher.Constraint("DistanceX", 46, 1, 46, 2, Q("1.380034 mm")),
    Sketcher.Constraint("DistanceY", 6, 2, 6, 1, Q("2.291663 mm")),
    Sketcher.Constraint("DistanceY", 10, 2, 10, 1, Q("1.458337 mm")),
    Sketcher.Constraint("DistanceY", 48, 1, 48, 2, Q("0.778873 mm")),
    Sketcher.Constraint("DistanceX", 38, 3, -1, 1, Q("13.37868 mm")),
    Sketcher.Constraint("DistanceX", -1, 1, 45, 3, Q("3.13336 mm")),
    Sketcher.Constraint("DistanceY", -1, 1, 45, 3, Q("16.422672 mm")),
    Sketcher.Constraint("DistanceX", 51, 3, -1, 1, Q("0.228011 mm")),
    Sketcher.Constraint("DistanceY", -1, 1, 12, 1, Q("18.474809 mm")),
    Sketcher.Constraint("DistanceY", 13, 2, -1, 1, Q("12.767241 mm")),
    Sketcher.Constraint("DistanceY", 20, 2, -1, 1, Q("21.100481 mm")),
    Sketcher.Constraint("DistanceY", 27, 2, -1, 1, Q("22.396631 mm")),
    Sketcher.Constraint("DistanceY", 32, 2, -1, 1, Q("15.350481 mm")),
    Sketcher.Constraint("DistanceX", 37, 2, -1, 1, Q("13.153969 mm")),
    Sketcher.Constraint("DistanceX", 40, 1, -1, 1, Q("1.888931 mm")),
    Sketcher.Constraint("DistanceY", -1, 1, 44, 2, Q("15.942849 mm")),
    Sketcher.Constraint("DistanceX", -1, 1, 45, 2, Q("3.133362 mm")),
    Sketcher.Constraint("DistanceX", -1, 1, 47, 2, Q("5.11731 mm")),
    Sketcher.Constraint("DistanceX", -1, 1, 49, 2, Q("4.897641 mm")),
    Sketcher.Constraint("DistanceX", -1, 1, 50, 2, Q("0.50396 mm")),
    Sketcher.Constraint("Distance", 28, Q("10.876418 mm")),
    Sketcher.Constraint("Distance", 37, Q("11.106423 mm")),
    Sketcher.Constraint("Distance", 50, Q("6.213606 mm")),
    Sketcher.Constraint("DistanceX", 14, 3, -1, 1, Q("5.597918 mm")),
    Sketcher.Constraint("DistanceY", 14, 3, -1, 1, Q("12.764186 mm")),
    Sketcher.Constraint("DistanceX", 27, 3, -1, 1, Q("13.378674 mm")),
    Sketcher.Constraint("DistanceX", 29, 3, -1, 1, Q("1.428925 mm")),
    Sketcher.Constraint("DistanceX", 36, 3, -1, 1, Q("1.658924 mm")),
    Sketcher.Constraint("DistanceX", 40, 3, -1, 1, Q("1.888923 mm")),
    Sketcher.Constraint("DistanceX", -1, 1, 47, 3, Q("4.377843 mm")),
])
pad2 = body2.newObject("PartDesign::Pad", "Pad001")
pad2.Profile = sketch2
pad2.Length = 8.5
body3 = doc.addObject("PartDesign::Body", "Body002")

sketch3 = body3.newObject("Sketcher::SketchObject", "Sketch002")
sketch3.AttachmentSupport = (doc.getObject("XY_Plane002"), [""])
sketch3.MapMode = "FlatFace"
add_polygon(sketch3, [(-20, 21), (-20, -21), (-18.5, -21), (-18.5, 21)])
sketch3.addConstraint([
    Sketcher.Constraint("Vertical", 0),
    Sketcher.Constraint("Horizontal", 1),
    Sketcher.Constraint("Vertical", 2),
    Sketcher.Constraint("Horizontal", 3),
    Sketcher.Constraint("DistanceY", 0, 2, 0, 1, Q("42 mm")),
    Sketcher.Constraint("DistanceX", 1, 1, 1, 2, Q("1.5 mm")),
    Sketcher.Constraint("DistanceX", 0, 2, -1, 1, Q("20 mm")),
    Sketcher.Constraint("DistanceY", 0, 2, -1, 1, Q("21 mm")),
])
pad3 = body3.newObject("PartDesign::Pad", "Pad002")
pad3.Profile = sketch3
pad3.Length = 17.5

doc.recompute()
